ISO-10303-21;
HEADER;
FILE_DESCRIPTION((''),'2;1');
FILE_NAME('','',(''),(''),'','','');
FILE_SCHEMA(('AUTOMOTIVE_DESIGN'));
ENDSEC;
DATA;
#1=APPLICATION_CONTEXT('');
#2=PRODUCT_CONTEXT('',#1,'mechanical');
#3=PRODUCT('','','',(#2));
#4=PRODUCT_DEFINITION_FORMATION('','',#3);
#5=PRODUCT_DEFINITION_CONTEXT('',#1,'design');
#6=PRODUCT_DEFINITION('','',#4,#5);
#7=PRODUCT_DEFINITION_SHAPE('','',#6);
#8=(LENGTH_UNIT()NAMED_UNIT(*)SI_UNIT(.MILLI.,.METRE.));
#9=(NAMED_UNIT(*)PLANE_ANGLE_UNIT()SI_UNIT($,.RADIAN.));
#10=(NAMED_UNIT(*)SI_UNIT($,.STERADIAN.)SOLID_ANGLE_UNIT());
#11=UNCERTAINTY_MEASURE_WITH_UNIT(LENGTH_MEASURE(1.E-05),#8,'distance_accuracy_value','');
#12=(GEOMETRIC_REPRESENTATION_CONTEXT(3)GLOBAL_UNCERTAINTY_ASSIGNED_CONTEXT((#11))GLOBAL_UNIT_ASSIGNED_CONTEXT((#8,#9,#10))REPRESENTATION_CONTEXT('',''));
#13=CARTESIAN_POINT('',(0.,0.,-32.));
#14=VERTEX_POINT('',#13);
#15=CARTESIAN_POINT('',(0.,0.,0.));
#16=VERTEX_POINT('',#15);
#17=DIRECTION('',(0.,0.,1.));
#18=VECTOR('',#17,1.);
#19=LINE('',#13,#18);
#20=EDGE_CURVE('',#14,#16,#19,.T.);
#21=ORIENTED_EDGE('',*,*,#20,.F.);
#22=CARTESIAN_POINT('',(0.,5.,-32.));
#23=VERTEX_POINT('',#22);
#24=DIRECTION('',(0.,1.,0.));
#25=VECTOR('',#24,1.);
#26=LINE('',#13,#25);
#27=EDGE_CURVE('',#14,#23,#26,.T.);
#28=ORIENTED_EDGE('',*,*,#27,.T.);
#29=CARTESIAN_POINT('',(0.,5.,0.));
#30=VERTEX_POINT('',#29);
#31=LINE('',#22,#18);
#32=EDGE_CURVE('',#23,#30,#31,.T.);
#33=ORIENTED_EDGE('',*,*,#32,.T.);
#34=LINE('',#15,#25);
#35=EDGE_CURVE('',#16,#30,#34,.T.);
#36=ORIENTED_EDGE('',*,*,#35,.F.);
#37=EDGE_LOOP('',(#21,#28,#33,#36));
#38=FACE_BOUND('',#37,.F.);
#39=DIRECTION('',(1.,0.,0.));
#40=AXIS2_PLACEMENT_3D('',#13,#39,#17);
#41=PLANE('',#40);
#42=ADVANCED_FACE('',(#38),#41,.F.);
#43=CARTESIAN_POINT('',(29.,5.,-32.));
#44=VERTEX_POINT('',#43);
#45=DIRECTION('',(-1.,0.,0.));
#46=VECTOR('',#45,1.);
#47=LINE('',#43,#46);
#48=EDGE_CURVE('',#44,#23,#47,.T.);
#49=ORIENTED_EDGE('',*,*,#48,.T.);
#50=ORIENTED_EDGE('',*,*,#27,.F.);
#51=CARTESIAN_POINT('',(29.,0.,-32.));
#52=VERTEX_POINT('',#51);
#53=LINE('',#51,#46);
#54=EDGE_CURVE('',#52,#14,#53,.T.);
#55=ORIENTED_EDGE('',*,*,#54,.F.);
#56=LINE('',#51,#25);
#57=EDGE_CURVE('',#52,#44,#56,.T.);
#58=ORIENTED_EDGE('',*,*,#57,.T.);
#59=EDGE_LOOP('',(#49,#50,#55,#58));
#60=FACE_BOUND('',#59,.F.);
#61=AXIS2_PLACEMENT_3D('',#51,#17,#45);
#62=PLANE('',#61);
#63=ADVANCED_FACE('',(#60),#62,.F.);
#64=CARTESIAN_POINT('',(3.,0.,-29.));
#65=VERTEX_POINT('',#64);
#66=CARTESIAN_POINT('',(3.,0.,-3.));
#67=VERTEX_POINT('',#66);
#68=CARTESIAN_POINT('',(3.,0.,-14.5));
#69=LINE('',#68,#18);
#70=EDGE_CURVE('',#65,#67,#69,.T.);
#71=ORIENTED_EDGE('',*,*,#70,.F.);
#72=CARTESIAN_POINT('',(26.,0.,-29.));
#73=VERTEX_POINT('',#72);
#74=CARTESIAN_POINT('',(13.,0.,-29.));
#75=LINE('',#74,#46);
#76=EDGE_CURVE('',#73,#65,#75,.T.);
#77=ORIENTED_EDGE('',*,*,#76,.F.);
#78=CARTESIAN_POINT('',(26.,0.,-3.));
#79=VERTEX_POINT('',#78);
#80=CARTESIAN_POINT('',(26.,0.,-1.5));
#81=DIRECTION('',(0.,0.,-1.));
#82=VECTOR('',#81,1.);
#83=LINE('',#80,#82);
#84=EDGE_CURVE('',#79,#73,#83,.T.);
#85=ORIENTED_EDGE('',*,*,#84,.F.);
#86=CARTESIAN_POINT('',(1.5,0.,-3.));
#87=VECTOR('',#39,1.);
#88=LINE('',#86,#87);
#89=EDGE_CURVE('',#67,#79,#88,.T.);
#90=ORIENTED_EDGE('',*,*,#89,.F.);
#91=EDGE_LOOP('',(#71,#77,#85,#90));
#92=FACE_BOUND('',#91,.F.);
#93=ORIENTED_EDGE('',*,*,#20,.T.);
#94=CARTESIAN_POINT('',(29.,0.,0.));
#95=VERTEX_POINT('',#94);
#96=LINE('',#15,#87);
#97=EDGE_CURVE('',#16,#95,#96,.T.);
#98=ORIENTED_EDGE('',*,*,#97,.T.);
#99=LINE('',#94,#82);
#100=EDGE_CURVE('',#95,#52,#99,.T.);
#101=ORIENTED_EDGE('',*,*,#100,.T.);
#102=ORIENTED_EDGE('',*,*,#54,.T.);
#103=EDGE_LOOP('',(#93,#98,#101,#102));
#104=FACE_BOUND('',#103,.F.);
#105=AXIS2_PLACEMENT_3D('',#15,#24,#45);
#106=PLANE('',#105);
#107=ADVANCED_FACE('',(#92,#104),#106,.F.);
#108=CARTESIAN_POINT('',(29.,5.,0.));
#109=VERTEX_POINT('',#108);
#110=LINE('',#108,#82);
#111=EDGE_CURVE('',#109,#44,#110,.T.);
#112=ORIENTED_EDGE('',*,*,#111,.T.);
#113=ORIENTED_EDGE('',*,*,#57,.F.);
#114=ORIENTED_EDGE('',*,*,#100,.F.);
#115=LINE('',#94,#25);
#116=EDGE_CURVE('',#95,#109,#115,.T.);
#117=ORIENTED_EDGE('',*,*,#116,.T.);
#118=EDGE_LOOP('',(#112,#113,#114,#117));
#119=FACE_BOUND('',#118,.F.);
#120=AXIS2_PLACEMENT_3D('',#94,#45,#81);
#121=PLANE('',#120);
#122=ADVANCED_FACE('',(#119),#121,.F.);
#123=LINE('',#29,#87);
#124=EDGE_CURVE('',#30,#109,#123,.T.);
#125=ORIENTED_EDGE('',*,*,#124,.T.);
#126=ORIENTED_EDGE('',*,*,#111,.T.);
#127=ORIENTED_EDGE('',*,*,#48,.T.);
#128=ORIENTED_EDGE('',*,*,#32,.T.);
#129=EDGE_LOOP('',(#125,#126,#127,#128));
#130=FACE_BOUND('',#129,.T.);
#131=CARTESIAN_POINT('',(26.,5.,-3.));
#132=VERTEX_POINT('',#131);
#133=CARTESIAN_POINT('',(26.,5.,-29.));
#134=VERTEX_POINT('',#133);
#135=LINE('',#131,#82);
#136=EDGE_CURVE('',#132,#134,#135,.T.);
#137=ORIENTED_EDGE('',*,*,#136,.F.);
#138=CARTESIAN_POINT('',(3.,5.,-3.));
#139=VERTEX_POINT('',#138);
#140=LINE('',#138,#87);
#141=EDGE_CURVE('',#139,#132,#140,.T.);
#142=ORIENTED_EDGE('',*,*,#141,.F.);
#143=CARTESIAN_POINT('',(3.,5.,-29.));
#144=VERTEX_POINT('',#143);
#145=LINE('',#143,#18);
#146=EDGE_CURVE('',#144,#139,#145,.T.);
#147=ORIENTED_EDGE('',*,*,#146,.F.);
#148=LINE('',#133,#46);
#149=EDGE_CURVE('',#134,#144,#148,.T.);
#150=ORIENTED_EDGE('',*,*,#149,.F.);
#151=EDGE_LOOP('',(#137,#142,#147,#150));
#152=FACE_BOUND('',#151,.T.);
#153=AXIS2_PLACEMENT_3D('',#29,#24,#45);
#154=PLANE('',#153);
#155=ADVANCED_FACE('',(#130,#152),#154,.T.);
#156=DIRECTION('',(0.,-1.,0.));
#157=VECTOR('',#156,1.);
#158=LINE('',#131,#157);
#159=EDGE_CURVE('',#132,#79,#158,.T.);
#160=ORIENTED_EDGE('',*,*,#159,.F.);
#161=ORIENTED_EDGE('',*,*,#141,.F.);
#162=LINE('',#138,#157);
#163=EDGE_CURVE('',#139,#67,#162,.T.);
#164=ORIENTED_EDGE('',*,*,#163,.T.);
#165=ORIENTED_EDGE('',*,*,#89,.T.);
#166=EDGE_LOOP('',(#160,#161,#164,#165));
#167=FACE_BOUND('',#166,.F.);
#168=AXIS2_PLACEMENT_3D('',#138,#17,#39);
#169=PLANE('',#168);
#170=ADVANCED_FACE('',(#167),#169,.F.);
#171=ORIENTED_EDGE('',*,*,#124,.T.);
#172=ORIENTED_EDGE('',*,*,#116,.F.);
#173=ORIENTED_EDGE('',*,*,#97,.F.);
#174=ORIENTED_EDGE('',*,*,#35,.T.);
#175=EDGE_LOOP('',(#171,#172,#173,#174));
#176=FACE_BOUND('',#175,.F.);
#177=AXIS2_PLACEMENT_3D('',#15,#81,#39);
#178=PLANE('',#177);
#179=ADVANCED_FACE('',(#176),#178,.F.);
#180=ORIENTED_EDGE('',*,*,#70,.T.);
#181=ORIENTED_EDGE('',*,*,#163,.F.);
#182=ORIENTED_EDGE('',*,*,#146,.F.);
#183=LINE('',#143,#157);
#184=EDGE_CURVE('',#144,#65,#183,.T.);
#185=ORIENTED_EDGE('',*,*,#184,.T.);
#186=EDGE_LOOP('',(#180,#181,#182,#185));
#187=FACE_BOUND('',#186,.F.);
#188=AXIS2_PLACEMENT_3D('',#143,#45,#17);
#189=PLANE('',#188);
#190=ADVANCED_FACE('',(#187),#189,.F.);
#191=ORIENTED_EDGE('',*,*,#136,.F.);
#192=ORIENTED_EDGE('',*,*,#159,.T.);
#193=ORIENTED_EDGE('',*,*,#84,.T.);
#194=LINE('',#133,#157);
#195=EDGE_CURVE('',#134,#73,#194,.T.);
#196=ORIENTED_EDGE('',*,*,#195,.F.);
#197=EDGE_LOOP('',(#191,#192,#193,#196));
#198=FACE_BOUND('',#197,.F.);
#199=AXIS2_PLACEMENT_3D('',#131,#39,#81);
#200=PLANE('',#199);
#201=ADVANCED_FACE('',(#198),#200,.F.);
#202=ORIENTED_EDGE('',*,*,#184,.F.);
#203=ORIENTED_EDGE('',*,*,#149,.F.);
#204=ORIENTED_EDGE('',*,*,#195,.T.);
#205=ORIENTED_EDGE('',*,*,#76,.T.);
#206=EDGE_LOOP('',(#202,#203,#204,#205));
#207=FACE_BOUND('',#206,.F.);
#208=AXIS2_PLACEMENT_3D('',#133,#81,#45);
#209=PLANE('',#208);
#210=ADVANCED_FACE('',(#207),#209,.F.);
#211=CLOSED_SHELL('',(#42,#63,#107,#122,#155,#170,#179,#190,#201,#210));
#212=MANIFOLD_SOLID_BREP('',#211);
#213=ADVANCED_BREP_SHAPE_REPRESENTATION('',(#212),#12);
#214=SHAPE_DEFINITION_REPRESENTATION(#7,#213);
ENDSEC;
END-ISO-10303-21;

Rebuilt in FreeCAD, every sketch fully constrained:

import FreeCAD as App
import Part
import Sketcher
from FreeCAD import Vector


def add_polygon(sketch, points):
    """Adds a closed chain of lines whose ends are joined by coincident constraints."""
    first, n = sketch.GeometryCount, len(points)
    for a, b in zip(points, points[1:] + points[:1]):
        sketch.addGeometry(Part.LineSegment(App.Vector(*a, 0), App.Vector(*b, 0)), False)
    for i in range(n):
        sketch.addConstraint(Sketcher.Constraint("Coincident", first + i, 2, first + (i + 1) % n, 1))

doc = App.newDocument("Part")
body = doc.addObject("PartDesign::Body", "Body")

sketch1 = doc.addObject("Sketcher::SketchObject", "Sketch")
body.addObject(sketch1)
sketch1.AttachmentSupport = (doc.XZ_Plane, [""])
sketch1.MapMode = "FlatFace"
add_polygon(sketch1, [(0, -32), (0, 0), (29, 0), (29, -32)])
sketch1.addConstraint(Sketcher.Constraint("Vertical", 0))
sketch1.addConstraint(Sketcher.Constraint("Horizontal", 1))
sketch1.addConstraint(Sketcher.Constraint("Vertical", 2))
sketch1.addConstraint(Sketcher.Constraint("Horizontal", 3))
sketch1.addConstraint(Sketcher.Constraint("Coincident", 0, 2, -1, 1))
sketch1.addConstraint(Sketcher.Constraint("DistanceX", 1, 1, 1, 2, 29.0))
sketch1.addConstraint(Sketcher.Constraint("DistanceY", 0, 1, 0, 2, 32.0))
pad1 = doc.addObject("PartDesign::Pad", "Pad")
body.addObject(pad1)
pad1.Profile = sketch1
pad1.Length = 5
pad1.Reversed = True

sketch2 = doc.addObject("Sketcher::SketchObject", "Sketch001")
body.addObject(sketch2)
sketch2.AttachmentSupport = (doc.XZ_Plane, [""])
sketch2.MapMode = "FlatFace"
sketch2.AttachmentOffset = App.Placement(Vector(0, 0, -5), App.Rotation())
add_polygon(sketch2, [(3, -29), (3, -3), (26, -3), (26, -29)])
sketch2.addConstraint(Sketcher.Constraint("Vertical", 0))
sketch2.addConstraint(Sketcher.Constraint("Horizontal", 1))
sketch2.addConstraint(Sketcher.Constraint("Vertical", 2))
sketch2.addConstraint(Sketcher.Constraint("Horizontal", 3))
sketch2.addConstraint(Sketcher.Constraint("DistanceX", 1, 1, 1, 2, 23.0))
sketch2.addConstraint(Sketcher.Constraint("DistanceY", 0, 1, 0, 2, 26.0))
sketch2.addConstraint(Sketcher.Constraint("DistanceX", -1, 1, 1, 2, 26.0))
sketch2.addConstraint(Sketcher.Constraint("DistanceY", 0, 2, -1, 1, 3.0))
pocket1 = doc.addObject("PartDesign::Pocket", "Pocket")
body.addObject(pocket1)
pocket1.Profile = sketch2
pocket1.Type = "ThroughAll"
pocket1.Reversed = True

doc.recompute()
